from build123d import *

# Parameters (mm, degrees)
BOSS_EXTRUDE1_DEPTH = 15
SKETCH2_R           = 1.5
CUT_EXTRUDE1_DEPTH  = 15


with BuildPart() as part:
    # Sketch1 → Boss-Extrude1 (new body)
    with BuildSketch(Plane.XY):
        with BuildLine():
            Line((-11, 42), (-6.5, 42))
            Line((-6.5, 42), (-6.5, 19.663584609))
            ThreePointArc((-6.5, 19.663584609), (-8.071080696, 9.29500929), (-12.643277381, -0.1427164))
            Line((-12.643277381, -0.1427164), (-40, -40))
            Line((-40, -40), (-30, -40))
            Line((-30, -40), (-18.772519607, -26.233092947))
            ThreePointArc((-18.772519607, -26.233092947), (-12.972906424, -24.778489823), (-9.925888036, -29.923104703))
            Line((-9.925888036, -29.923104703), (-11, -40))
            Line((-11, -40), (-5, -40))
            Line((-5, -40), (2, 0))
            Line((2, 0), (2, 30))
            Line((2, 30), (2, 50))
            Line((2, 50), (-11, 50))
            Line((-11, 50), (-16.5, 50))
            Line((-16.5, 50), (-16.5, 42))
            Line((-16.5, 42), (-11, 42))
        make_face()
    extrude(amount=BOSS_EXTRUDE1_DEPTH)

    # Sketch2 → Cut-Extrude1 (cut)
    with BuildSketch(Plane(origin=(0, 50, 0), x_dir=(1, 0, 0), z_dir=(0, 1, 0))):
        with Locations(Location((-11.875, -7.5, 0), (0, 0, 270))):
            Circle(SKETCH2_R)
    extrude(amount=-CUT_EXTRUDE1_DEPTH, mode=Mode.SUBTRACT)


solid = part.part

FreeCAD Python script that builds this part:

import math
import FreeCAD as App
import Part
import Sketcher
from FreeCAD import Vector

doc = App.newDocument("Part")
body = doc.addObject("PartDesign::Body", "Body")

sketch1 = body.newObject("Sketcher::SketchObject", "Sketch")
sketch1.AttachmentSupport = (doc.getObject("XY_Plane"), [""])
sketch1.MapMode = "FlatFace"
sketch1.addGeometry([
    Part.LineSegment(Vector(-6, 42, 0), Vector(-6, 20, 0)),
    Part.ArcOfCircle(Part.Circle(Vector(-42, 20, 0), Vector(0, 0, 1), 35), math.radians(-34), math.radians(0)),
    Part.LineSegment(Vector(-13, 0, 0), Vector(-40, -40, 0)),
    Part.LineSegment(Vector(-40, -40, 0), Vector(-30, -40, 0)),
    Part.LineSegment(Vector(-30, -40, 0), Vector(-19, -26, 0)),
    Part.ArcOfCircle(Part.Circle(Vector(-15, -29, 0), Vector(0, 0, 1), 5), math.radians(-6), math.radians(141)),
    Part.LineSegment(Vector(-10, -30, 0), Vector(-11, -40, 0)),
    Part.LineSegment(Vector(-11, -40, 0), Vector(-5, -40, 0)),
    Part.LineSegment(Vector(-5, -40, 0), Vector(2, 0, 0)),
    Part.LineSegment(Vector(2, 0, 0), Vector(2, 50, 0)),
    Part.LineSegment(Vector(2, 50, 0), Vector(-16, 50, 0)),
    Part.LineSegment(Vector(-16, 50, 0), Vector(-16, 42, 0)),
    Part.LineSegment(Vector(-16, 42, 0), Vector(-6, 42, 0)),
], False)
sketch1.addConstraint([
    Sketcher.Constraint("Tangent", 0, 2, 1, 2),
    Sketcher.Constraint("Tangent", 1, 1, 2, 1),
    Sketcher.Constraint("Coincident", 2, 2, 3, 1),
    Sketcher.Constraint("Coincident", 3, 2, 4, 1),
    Sketcher.Constraint("Tangent", 4, 2, 5, 2),
    Sketcher.Constraint("Tangent", 5, 1, 6, 1),
    Sketcher.Constraint("Coincident", 6, 2, 7, 1),
    Sketcher.Constraint("Coincident", 7, 2, 8, 1),
    Sketcher.Constraint("Coincident", 8, 2, 9, 1),
    Sketcher.Constraint("Coincident", 9, 2, 10, 1),
    Sketcher.Constraint("Coincident", 10, 2, 11, 1),
    Sketcher.Constraint("Coincident", 11, 2, 12, 1),
    Sketcher.Constraint("Coincident", 12, 2, 0, 1),
    Sketcher.Constraint("Vertical", 0),
    Sketcher.Constraint("Horizontal", 3),
    Sketcher.Constraint("Horizontal", 7),
    Sketcher.Constraint("Vertical", 9),
    Sketcher.Constraint("Horizontal", 10),
    Sketcher.Constraint("Vertical", 11),
    Sketcher.Constraint("Horizontal", 12),
    Sketcher.Constraint("PointOnObject", 8, 2, -1),
    Sketcher.Constraint("Horizontal", 3, 2, 6, 2),
    Sketcher.Constraint("Equal", 3, 12),
    Sketcher.Constraint("Radius", 1, 35.0),
    Sketcher.Constraint("Radius", 5, 5.0),
    Sketcher.Constraint("DistanceX", 3, 1, 3, 2, 10.0),
    Sketcher.Constraint("DistanceX", 7, 1, 7, 2, 6.0),
    Sketcher.Constraint("DistanceY", 9, 1, 9, 2, 50.0),
    Sketcher.Constraint("DistanceY", 11, 2, 11, 1, 8.0),
    Sketcher.Constraint("DistanceX", 10, 2, 10, 1, 18.5),
    Sketcher.Constraint("DistanceX", 2, 2, -1, 1, 40.0),
    Sketcher.Constraint("DistanceY", 2, 2, -1, 1, 40.0),
    Sketcher.Constraint("DistanceX", 6, 2, -1, 1, 11.0),
    Sketcher.Constraint("DistanceX", -1, 1, 8, 2, 2.0),
    Sketcher.Constraint("DistanceY", 1, 1, 0, 2, 19.806301),
    Sketcher.Constraint("Distance", 6, 10.133979),
    Sketcher.Constraint("DistanceY", 5, 3, -1, 1, 29.393149),
])
pad1 = body.newObject("PartDesign::Pad", "Pad")
pad1.Profile = sketch1
pad1.Length = 15

sketch2 = body.newObject("Sketcher::SketchObject", "Sketch001")
sketch2.AttachmentSupport = (doc.getObject("XZ_Plane"), [""])
sketch2.MapMode = "FlatFace"
sketch2.AttachmentOffset = App.Placement(Vector(0, 0, -50), App.Rotation())
sketch2.addGeometry(Part.Circle(Vector(-11.9, 7.5, 0), Vector(0, 0, 1), 1.5), False)
sketch2.addConstraint([
    Sketcher.Constraint("Diameter", 0, 3.0),
    Sketcher.Constraint("DistanceY", -1, 1, 0, 3, 7.5),
    Sketcher.Constraint("DistanceX", 0, 3, -1, 1, 11.875),
])
pocket1 = body.newObject("PartDesign::Pocket", "Pocket")
pocket1.Profile = sketch2
pocket1.Length = 15
pocket1.Reversed = True

doc.recompute()
